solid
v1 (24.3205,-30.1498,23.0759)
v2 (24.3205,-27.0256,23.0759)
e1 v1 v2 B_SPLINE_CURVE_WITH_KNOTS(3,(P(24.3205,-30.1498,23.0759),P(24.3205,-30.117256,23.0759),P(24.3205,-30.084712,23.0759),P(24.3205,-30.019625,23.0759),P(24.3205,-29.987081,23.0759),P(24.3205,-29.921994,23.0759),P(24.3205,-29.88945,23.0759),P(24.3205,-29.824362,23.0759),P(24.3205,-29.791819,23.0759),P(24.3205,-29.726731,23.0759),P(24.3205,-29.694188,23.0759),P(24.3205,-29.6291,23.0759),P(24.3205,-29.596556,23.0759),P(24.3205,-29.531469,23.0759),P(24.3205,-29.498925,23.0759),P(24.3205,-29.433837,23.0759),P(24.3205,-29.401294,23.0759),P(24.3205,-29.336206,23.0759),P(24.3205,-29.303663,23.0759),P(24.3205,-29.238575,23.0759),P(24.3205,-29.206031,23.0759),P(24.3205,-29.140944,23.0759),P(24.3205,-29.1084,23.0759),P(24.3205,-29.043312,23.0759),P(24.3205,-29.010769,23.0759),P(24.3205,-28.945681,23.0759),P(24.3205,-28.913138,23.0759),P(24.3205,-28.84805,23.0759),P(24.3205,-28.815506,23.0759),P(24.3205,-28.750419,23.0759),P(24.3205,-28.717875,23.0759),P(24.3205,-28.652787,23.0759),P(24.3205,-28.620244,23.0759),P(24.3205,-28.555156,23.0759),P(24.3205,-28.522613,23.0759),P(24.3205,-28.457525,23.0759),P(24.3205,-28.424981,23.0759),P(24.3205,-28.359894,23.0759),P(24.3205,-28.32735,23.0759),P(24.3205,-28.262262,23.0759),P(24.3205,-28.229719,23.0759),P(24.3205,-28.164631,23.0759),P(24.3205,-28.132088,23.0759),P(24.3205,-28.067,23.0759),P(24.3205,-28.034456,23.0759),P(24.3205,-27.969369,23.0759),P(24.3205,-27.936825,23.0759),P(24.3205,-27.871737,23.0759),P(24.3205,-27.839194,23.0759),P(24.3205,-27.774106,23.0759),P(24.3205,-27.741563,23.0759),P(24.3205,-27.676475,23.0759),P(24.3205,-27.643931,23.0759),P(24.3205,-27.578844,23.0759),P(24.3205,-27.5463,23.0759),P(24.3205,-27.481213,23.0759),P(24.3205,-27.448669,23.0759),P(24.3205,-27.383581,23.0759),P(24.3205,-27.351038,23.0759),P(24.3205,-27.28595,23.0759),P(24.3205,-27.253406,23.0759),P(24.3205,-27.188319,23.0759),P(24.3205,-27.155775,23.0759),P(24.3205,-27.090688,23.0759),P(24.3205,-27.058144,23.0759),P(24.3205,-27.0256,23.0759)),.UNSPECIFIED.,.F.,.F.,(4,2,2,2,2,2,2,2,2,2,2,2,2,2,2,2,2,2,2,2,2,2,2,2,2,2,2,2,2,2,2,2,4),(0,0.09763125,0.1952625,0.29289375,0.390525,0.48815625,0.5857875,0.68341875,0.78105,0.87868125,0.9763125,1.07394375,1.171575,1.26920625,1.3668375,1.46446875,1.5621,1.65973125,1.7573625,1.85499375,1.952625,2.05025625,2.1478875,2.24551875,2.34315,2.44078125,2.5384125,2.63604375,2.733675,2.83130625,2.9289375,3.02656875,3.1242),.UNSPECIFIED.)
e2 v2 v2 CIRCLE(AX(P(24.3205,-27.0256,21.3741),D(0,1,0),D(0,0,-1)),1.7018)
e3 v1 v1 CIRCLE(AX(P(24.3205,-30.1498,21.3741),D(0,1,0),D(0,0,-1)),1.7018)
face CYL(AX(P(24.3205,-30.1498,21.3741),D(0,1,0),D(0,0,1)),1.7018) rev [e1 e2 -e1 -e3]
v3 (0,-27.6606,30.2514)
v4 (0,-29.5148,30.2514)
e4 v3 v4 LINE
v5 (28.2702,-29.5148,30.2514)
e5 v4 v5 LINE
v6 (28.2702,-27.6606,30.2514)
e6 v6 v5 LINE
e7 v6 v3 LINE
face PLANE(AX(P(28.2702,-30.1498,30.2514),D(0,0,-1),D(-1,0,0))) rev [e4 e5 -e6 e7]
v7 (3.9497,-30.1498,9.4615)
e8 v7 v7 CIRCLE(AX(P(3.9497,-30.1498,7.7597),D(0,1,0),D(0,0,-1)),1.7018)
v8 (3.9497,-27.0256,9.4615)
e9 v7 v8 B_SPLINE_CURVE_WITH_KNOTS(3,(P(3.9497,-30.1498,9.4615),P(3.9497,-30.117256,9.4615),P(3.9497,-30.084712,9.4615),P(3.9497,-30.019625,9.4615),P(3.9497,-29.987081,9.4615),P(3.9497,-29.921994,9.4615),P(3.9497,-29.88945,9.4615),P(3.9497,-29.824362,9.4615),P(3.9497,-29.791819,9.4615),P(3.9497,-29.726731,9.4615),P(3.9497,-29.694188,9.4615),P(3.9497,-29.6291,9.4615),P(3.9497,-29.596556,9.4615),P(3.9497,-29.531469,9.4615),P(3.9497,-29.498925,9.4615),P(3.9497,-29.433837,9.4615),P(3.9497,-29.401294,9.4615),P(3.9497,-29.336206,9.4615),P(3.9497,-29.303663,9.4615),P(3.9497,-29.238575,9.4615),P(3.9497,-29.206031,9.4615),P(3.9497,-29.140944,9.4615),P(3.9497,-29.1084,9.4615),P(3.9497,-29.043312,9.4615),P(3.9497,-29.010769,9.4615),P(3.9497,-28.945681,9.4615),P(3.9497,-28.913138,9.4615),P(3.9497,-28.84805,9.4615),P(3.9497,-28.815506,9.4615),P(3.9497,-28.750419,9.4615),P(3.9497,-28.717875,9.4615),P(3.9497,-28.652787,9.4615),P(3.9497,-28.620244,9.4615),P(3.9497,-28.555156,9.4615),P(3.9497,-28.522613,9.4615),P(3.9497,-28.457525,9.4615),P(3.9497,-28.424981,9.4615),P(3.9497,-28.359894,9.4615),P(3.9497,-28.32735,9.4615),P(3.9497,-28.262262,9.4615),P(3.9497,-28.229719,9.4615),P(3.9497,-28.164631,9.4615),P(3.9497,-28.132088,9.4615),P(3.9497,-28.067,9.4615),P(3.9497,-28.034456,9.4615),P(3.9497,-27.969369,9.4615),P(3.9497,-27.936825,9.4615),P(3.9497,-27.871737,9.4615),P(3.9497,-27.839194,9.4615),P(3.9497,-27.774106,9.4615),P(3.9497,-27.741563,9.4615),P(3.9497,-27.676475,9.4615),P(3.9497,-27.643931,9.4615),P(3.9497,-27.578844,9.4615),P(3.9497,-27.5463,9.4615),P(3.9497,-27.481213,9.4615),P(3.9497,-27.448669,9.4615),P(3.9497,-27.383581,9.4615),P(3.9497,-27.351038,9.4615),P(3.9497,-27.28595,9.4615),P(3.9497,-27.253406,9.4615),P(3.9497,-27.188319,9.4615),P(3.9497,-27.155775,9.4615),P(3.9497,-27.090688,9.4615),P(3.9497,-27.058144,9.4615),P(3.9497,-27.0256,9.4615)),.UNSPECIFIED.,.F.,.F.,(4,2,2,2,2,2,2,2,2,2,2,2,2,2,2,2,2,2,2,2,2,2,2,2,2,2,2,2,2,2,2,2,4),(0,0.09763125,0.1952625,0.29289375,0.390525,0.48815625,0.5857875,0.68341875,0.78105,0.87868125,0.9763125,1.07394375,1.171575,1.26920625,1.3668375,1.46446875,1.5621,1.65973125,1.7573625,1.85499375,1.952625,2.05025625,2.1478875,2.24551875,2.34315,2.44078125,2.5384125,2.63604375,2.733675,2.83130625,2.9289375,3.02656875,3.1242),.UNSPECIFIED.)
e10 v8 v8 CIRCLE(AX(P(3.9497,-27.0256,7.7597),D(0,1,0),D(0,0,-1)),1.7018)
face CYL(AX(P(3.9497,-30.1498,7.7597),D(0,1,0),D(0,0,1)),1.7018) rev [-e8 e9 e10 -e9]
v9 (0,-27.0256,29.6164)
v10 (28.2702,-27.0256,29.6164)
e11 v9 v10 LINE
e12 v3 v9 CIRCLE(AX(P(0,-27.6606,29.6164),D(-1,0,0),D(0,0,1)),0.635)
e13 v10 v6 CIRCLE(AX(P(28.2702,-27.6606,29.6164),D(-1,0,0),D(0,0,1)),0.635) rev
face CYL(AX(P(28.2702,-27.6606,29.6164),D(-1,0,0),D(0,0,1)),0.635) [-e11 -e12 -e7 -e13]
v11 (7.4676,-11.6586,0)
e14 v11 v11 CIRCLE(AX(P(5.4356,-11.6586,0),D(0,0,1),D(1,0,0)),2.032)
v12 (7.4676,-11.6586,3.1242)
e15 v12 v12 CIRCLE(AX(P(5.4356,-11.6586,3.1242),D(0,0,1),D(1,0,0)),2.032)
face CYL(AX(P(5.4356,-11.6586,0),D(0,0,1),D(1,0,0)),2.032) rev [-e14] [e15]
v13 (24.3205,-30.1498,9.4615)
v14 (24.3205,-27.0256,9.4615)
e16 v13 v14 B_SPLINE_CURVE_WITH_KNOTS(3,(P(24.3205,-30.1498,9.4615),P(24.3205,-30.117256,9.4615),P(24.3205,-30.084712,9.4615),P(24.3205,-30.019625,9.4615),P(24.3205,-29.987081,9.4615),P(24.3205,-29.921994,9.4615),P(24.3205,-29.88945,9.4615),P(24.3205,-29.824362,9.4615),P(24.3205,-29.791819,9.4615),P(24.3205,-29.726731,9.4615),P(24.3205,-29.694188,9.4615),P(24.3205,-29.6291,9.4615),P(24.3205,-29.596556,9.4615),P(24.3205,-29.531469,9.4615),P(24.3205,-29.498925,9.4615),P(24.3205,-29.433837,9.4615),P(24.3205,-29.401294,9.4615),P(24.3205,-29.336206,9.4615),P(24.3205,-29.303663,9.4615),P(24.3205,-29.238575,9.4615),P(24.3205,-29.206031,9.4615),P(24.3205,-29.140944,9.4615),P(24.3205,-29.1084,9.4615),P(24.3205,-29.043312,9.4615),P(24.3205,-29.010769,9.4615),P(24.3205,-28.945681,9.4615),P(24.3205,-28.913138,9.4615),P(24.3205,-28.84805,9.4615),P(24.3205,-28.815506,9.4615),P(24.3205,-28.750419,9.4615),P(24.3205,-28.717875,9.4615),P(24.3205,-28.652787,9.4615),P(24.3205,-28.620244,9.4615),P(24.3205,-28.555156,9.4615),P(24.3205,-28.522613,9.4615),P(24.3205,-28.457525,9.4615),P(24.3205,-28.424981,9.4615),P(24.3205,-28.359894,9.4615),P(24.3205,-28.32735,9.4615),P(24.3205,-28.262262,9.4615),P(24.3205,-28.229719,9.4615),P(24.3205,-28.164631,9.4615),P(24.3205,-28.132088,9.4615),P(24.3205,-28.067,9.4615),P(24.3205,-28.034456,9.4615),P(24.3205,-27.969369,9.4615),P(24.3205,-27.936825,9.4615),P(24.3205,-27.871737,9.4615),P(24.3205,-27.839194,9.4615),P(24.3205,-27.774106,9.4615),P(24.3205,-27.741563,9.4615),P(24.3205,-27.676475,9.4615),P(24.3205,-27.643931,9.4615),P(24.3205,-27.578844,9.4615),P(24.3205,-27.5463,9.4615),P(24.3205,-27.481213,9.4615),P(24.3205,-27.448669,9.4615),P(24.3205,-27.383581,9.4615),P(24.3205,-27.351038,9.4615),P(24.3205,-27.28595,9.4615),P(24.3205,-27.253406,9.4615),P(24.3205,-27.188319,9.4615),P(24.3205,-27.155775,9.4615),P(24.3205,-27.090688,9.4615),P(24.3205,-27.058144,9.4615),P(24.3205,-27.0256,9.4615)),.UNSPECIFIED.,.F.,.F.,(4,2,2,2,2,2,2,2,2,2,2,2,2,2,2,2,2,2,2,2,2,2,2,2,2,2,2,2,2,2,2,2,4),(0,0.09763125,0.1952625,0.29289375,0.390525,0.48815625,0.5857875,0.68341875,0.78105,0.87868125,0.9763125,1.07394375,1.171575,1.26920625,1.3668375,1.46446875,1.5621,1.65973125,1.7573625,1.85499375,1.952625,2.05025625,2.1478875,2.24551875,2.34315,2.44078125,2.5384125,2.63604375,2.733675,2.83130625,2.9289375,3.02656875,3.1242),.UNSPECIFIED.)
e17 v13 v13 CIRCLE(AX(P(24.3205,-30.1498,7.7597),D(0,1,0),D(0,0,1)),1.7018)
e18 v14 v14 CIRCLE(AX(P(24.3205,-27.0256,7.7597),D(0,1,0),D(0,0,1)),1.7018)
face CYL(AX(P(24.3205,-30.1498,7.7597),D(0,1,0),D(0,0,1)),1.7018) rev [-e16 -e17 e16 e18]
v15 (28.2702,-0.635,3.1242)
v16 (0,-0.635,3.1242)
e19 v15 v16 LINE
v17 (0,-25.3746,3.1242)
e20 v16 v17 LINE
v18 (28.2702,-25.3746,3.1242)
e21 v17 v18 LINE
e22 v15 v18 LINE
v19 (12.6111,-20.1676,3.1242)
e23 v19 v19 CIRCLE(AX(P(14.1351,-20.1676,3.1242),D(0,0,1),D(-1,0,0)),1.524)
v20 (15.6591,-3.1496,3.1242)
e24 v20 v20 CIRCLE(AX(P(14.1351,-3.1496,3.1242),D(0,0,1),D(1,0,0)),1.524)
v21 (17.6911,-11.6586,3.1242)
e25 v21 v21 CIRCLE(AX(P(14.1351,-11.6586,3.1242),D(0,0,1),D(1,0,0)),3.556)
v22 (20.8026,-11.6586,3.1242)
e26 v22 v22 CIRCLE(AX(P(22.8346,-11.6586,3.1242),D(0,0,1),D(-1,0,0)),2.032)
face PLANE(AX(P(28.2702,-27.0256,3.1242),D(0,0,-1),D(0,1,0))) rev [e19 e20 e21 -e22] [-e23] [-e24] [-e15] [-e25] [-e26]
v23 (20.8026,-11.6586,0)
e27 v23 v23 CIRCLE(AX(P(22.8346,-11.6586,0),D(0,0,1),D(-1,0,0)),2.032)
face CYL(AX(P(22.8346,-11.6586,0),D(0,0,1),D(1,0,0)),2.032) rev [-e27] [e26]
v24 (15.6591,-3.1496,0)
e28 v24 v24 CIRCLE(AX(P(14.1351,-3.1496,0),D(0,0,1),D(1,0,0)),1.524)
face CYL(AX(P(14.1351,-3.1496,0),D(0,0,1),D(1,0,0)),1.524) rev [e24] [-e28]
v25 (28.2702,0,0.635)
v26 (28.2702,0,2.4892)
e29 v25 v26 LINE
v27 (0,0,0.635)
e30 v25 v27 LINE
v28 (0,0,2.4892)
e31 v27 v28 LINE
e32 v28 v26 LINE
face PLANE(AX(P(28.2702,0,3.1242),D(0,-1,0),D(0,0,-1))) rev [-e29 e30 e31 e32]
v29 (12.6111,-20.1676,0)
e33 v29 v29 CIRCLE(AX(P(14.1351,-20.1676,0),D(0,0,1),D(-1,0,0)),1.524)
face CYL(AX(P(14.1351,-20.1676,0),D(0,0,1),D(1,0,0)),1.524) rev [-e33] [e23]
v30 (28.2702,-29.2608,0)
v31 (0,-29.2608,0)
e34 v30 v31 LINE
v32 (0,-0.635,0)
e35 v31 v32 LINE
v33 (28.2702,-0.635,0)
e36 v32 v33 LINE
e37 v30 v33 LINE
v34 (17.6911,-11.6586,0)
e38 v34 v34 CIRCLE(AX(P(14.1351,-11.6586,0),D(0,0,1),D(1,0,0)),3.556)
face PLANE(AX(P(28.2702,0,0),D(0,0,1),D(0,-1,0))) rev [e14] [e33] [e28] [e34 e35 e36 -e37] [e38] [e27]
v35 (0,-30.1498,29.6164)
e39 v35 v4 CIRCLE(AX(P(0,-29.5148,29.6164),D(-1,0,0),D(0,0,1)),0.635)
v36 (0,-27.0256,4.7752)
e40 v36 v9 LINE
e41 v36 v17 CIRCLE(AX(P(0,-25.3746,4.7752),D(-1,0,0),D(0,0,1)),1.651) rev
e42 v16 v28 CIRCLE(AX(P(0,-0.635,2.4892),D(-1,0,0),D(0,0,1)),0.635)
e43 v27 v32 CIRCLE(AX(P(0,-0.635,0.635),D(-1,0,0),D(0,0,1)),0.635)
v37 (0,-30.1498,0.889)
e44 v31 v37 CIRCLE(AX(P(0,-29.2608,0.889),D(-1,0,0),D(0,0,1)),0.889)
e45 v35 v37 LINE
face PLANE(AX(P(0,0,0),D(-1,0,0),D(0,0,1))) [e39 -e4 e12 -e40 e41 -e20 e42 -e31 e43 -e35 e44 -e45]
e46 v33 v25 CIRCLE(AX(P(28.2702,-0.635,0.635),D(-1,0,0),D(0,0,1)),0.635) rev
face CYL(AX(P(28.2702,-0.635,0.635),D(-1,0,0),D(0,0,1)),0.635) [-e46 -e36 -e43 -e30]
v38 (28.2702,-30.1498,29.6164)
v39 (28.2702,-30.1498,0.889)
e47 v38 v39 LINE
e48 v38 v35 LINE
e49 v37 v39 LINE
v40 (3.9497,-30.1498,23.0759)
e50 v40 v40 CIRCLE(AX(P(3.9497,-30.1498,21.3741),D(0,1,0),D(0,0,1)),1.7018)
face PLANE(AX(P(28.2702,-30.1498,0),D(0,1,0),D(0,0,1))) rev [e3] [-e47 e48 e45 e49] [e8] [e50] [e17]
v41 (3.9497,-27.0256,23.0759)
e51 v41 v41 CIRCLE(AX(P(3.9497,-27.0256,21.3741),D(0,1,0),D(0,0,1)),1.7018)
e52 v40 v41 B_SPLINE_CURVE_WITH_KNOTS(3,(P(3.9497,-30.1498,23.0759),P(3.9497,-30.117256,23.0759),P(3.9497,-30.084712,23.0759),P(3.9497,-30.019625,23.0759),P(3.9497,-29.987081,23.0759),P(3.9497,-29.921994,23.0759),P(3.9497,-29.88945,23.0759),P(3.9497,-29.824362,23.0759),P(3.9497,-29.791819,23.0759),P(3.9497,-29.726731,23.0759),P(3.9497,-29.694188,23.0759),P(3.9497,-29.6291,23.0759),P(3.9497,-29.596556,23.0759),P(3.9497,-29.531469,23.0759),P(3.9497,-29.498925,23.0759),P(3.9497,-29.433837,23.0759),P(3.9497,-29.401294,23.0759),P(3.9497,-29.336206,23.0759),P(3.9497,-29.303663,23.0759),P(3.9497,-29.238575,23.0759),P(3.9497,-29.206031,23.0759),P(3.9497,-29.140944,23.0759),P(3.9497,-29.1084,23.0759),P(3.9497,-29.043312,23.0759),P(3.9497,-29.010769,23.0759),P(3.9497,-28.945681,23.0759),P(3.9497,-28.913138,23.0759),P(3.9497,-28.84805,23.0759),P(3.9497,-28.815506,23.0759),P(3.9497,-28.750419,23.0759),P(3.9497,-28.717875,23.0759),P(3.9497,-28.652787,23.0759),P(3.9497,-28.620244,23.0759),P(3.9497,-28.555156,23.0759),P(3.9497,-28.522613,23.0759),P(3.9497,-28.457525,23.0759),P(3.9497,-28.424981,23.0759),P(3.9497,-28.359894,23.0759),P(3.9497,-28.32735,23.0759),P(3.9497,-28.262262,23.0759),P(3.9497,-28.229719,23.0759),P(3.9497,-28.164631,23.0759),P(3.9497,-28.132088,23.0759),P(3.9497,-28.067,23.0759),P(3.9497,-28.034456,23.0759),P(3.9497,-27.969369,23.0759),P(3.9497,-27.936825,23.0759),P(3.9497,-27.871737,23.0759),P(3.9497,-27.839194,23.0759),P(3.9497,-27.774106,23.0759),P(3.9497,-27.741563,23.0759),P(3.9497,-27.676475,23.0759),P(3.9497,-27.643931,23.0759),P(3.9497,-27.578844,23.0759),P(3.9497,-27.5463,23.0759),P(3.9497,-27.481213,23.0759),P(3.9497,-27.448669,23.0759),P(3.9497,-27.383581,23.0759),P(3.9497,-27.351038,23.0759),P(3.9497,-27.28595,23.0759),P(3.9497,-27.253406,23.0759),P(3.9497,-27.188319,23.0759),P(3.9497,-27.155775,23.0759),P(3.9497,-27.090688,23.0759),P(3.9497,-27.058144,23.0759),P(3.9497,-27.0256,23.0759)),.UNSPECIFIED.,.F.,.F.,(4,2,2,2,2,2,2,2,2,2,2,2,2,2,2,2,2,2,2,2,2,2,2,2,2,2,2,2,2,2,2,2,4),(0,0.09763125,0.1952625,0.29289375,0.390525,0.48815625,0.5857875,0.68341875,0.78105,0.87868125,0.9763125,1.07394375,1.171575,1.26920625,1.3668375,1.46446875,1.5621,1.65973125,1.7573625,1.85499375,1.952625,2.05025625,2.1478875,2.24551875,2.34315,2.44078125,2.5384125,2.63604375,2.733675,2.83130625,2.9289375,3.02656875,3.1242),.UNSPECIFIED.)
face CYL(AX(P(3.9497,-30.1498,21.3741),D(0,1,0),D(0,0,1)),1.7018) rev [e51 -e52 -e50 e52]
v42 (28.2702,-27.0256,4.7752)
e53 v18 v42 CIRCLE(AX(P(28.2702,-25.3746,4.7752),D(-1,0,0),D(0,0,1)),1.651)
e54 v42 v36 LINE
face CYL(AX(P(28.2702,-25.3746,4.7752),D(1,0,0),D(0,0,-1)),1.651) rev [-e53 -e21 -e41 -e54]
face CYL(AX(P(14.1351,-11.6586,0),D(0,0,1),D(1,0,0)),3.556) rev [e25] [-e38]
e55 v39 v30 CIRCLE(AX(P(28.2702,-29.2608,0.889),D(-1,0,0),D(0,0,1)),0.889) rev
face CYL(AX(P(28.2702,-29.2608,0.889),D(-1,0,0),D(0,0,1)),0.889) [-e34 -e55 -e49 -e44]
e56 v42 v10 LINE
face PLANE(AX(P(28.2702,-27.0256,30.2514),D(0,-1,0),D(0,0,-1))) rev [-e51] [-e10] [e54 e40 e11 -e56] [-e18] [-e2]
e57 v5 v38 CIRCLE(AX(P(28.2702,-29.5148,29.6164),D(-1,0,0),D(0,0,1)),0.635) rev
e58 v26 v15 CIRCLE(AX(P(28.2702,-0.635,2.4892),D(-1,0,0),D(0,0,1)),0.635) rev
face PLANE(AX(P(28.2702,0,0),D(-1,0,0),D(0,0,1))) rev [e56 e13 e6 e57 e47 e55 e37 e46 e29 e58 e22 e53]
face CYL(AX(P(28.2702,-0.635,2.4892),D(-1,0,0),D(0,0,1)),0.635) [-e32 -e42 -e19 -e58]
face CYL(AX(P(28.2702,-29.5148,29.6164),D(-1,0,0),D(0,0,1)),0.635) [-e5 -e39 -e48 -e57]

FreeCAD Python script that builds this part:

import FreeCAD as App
import Part
import Sketcher
Q = App.Units.Quantity


def edges_at(feature, points):
    """Names of the edges that pass closest to the given points."""
    edges = feature.Shape.Edges
    near = lambda p: min(range(len(edges)), key=lambda i: edges[i].distToShape(Part.Vertex(*p))[0])
    return sorted({f"Edge{near(p) + 1}" for p in points})


def add_polygon(sketch, points):
    """Adds a closed chain of lines whose ends are joined by coincident constraints."""
    first, n = sketch.GeometryCount, len(points)
    for a, b in zip(points, points[1:] + points[:1]):
        sketch.addGeometry(Part.LineSegment(App.Vector(*a, 0), App.Vector(*b, 0)), False)
    for i in range(n):
        sketch.addConstraint(Sketcher.Constraint("Coincident", first + i, 2, first + (i + 1) % n, 1))

doc = App.newDocument("Part")
body = doc.addObject("PartDesign::Body", "Body")

# Sketch on YZ plane
sketch1 = doc.addObject("Sketcher::SketchObject", "Sketch")
body.addObject(sketch1)
sketch1.AttachmentSupport = (doc.YZ_Plane, [""])
sketch1.MapMode = "FlatFace"
add_polygon(sketch1, [(-30.1, 0), (0, 0), (0, 3.1), (-27, 3.1), (-27, 30.3), (-30.1, 30.3)])  # lines 0-5
sketch1.addConstraint([
    Sketcher.Constraint("Horizontal", 0),
    Sketcher.Constraint("Vertical", 1),
    Sketcher.Constraint("Horizontal", 2),
    Sketcher.Constraint("Vertical", 3),
    Sketcher.Constraint("Horizontal", 4),
    Sketcher.Constraint("Vertical", 5),
    Sketcher.Constraint("Coincident", 0, 2, -1, 1),
    Sketcher.Constraint("Equal", 4, 1),
    Sketcher.Constraint("DistanceX", 0, 1, 0, 2, Q("1.187 in")),
    Sketcher.Constraint("DistanceX", 2, 2, 2, 1, Q("1.064 in")),
    Sketcher.Constraint("DistanceY", 3, 1, 3, 2, Q("1.068 in")),
])
pad1 = doc.addObject("PartDesign::Pad", "Pad")
body.addObject(pad1)
pad1.Profile = sketch1
pad1.Length = Q("1.113 in")

# Sketch on XY plane
sketch2 = doc.addObject("Sketcher::SketchObject", "Sketch001")
body.addObject(sketch2)
sketch2.AttachmentSupport = (doc.XY_Plane, [""])
sketch2.MapMode = "FlatFace"
sketch2.AttachmentOffset = App.Placement(App.Vector(0, 0, 0.123 * 25.4), App.Rotation())
sketch2.addGeometry([
    Part.Circle(App.Vector(14.1, -11.7, 0), App.Vector(0, 0, 1), 3.6),  # 0
    Part.Circle(App.Vector(14.1, -3.1, 0), App.Vector(0, 0, 1), 1.5),  # 1
    Part.Circle(App.Vector(5.4, -11.7, 0), App.Vector(0, 0, 1), 2),  # 2
    Part.Circle(App.Vector(22.8, -11.7, 0), App.Vector(0, 0, 1), 2),  # 3
    Part.Circle(App.Vector(14.1, -20.2, 0), App.Vector(0, 0, 1), 1.5),  # 4
], False)
sketch2.addConstraint([
    Sketcher.Constraint("Equal", 2, 3),
    Sketcher.Constraint("Equal", 1, 4),
    Sketcher.Constraint("Horizontal", 0, 3, 2, 3),
    Sketcher.Constraint("Horizontal", 2, 3, 3, 3),
    Sketcher.Constraint("Vertical", 0, 3, 1, 3),
    Sketcher.Constraint("Vertical", 1, 3, 4, 3),
    Sketcher.Constraint("Diameter", 0, Q("0.28 in")),
    Sketcher.Constraint("Diameter", 1, Q("0.12 in")),
    Sketcher.Constraint("Diameter", 2, Q("0.16 in")),
    Sketcher.Constraint("DistanceY", 4, 3, 1, 3, Q("0.67 in")),
    Sketcher.Constraint("DistanceY", 0, 3, -1, 1, Q("0.459 in")),
    Sketcher.Constraint("DistanceY", 1, 3, -1, 1, Q("0.124 in")),
    Sketcher.Constraint("DistanceX", -1, 1, 2, 3, Q("0.214 in")),
    Sketcher.Constraint("DistanceX", -1, 1, 3, 3, Q("0.899 in")),
    Sketcher.Constraint("DistanceX", -1, 1, 0, 3, Q("0.5565 in")),
])
pocket1 = doc.addObject("PartDesign::Pocket", "Pocket")
body.addObject(pocket1)
pocket1.Profile = sketch2
pocket1.Type = "ThroughAll"

# Sketch on XZ plane
sketch3 = doc.addObject("Sketcher::SketchObject", "Sketch002")
body.addObject(sketch3)
sketch3.AttachmentSupport = (doc.XZ_Plane, [""])
sketch3.MapMode = "FlatFace"
sketch3.AttachmentOffset = App.Placement(App.Vector(0, 0, 1.064 * 25.4), App.Rotation())
sketch3.addGeometry([
    Part.Circle(App.Vector(24.3, 7.8, 0), App.Vector(0, 0, 1), 1.7),
    Part.Circle(App.Vector(3.9, 7.8, 0), App.Vector(0, 0, 1), 1.7),
    Part.Circle(App.Vector(3.9, 21.4, 0), App.Vector(0, 0, 1), 1.7),
    Part.Circle(App.Vector(24.3, 21.4, 0), App.Vector(0, 0, 1), 1.7),
], False)
sketch3.addConstraint([
    Sketcher.Constraint("Equal", 0, 1),
    Sketcher.Constraint("Equal", 1, 2),
    Sketcher.Constraint("Equal", 2, 3),
    Sketcher.Constraint("Horizontal", 0, 3, 1, 3),
    Sketcher.Constraint("Horizontal", 2, 3, 3, 3),
    Sketcher.Constraint("Vertical", 1, 3, 2, 3),
    Sketcher.Constraint("Vertical", 0, 3, 3, 3),
    Sketcher.Constraint("Diameter", 0, Q("0.134 in")),
    Sketcher.Constraint("DistanceX", 1, 3, 0, 3, Q("0.802 in")),
    Sketcher.Constraint("DistanceY", 1, 3, 2, 3, Q("0.536 in")),
    Sketcher.Constraint("DistanceX", -1, 1, 0, 3, Q("0.9575 in")),
    Sketcher.Constraint("DistanceY", -1, 1, 0, 3, Q("0.3055 in")),
])
pocket2 = doc.addObject("PartDesign::Pocket", "Pocket001")
body.addObject(pocket2)
pocket2.Profile = sketch3
pocket2.Type = "ThroughAll"
pocket2.Reversed = True
doc.recompute()

fillet = doc.addObject("PartDesign::Fillet", "Fillet")
body.addObject(fillet)
fillet.Base = (pocket2, edges_at(pocket2, [(14.135, -27.026, 3.124)]))
fillet.Radius = Q("0.065 in")
doc.recompute()

fillet2 = doc.addObject("PartDesign::Fillet", "Fillet001")
body.addObject(fillet2)
fillet2.Base = (fillet, edges_at(fillet, [(14.135, -30.15, 0)]))
fillet2.Radius = Q("0.035 in")
doc.recompute()

fillet3 = doc.addObject("PartDesign::Fillet", "Fillet002")
body.addObject(fillet3)
fillet3.Base = (fillet2, edges_at(fillet2, [
    (14.135, 0, 0),
    (14.135, -30.15, 30.251),
    (14.135, -27.026, 30.251),
    (14.135, 0, 3.124),
]))
fillet3.Radius = Q("0.025 in")

doc.recompute()
